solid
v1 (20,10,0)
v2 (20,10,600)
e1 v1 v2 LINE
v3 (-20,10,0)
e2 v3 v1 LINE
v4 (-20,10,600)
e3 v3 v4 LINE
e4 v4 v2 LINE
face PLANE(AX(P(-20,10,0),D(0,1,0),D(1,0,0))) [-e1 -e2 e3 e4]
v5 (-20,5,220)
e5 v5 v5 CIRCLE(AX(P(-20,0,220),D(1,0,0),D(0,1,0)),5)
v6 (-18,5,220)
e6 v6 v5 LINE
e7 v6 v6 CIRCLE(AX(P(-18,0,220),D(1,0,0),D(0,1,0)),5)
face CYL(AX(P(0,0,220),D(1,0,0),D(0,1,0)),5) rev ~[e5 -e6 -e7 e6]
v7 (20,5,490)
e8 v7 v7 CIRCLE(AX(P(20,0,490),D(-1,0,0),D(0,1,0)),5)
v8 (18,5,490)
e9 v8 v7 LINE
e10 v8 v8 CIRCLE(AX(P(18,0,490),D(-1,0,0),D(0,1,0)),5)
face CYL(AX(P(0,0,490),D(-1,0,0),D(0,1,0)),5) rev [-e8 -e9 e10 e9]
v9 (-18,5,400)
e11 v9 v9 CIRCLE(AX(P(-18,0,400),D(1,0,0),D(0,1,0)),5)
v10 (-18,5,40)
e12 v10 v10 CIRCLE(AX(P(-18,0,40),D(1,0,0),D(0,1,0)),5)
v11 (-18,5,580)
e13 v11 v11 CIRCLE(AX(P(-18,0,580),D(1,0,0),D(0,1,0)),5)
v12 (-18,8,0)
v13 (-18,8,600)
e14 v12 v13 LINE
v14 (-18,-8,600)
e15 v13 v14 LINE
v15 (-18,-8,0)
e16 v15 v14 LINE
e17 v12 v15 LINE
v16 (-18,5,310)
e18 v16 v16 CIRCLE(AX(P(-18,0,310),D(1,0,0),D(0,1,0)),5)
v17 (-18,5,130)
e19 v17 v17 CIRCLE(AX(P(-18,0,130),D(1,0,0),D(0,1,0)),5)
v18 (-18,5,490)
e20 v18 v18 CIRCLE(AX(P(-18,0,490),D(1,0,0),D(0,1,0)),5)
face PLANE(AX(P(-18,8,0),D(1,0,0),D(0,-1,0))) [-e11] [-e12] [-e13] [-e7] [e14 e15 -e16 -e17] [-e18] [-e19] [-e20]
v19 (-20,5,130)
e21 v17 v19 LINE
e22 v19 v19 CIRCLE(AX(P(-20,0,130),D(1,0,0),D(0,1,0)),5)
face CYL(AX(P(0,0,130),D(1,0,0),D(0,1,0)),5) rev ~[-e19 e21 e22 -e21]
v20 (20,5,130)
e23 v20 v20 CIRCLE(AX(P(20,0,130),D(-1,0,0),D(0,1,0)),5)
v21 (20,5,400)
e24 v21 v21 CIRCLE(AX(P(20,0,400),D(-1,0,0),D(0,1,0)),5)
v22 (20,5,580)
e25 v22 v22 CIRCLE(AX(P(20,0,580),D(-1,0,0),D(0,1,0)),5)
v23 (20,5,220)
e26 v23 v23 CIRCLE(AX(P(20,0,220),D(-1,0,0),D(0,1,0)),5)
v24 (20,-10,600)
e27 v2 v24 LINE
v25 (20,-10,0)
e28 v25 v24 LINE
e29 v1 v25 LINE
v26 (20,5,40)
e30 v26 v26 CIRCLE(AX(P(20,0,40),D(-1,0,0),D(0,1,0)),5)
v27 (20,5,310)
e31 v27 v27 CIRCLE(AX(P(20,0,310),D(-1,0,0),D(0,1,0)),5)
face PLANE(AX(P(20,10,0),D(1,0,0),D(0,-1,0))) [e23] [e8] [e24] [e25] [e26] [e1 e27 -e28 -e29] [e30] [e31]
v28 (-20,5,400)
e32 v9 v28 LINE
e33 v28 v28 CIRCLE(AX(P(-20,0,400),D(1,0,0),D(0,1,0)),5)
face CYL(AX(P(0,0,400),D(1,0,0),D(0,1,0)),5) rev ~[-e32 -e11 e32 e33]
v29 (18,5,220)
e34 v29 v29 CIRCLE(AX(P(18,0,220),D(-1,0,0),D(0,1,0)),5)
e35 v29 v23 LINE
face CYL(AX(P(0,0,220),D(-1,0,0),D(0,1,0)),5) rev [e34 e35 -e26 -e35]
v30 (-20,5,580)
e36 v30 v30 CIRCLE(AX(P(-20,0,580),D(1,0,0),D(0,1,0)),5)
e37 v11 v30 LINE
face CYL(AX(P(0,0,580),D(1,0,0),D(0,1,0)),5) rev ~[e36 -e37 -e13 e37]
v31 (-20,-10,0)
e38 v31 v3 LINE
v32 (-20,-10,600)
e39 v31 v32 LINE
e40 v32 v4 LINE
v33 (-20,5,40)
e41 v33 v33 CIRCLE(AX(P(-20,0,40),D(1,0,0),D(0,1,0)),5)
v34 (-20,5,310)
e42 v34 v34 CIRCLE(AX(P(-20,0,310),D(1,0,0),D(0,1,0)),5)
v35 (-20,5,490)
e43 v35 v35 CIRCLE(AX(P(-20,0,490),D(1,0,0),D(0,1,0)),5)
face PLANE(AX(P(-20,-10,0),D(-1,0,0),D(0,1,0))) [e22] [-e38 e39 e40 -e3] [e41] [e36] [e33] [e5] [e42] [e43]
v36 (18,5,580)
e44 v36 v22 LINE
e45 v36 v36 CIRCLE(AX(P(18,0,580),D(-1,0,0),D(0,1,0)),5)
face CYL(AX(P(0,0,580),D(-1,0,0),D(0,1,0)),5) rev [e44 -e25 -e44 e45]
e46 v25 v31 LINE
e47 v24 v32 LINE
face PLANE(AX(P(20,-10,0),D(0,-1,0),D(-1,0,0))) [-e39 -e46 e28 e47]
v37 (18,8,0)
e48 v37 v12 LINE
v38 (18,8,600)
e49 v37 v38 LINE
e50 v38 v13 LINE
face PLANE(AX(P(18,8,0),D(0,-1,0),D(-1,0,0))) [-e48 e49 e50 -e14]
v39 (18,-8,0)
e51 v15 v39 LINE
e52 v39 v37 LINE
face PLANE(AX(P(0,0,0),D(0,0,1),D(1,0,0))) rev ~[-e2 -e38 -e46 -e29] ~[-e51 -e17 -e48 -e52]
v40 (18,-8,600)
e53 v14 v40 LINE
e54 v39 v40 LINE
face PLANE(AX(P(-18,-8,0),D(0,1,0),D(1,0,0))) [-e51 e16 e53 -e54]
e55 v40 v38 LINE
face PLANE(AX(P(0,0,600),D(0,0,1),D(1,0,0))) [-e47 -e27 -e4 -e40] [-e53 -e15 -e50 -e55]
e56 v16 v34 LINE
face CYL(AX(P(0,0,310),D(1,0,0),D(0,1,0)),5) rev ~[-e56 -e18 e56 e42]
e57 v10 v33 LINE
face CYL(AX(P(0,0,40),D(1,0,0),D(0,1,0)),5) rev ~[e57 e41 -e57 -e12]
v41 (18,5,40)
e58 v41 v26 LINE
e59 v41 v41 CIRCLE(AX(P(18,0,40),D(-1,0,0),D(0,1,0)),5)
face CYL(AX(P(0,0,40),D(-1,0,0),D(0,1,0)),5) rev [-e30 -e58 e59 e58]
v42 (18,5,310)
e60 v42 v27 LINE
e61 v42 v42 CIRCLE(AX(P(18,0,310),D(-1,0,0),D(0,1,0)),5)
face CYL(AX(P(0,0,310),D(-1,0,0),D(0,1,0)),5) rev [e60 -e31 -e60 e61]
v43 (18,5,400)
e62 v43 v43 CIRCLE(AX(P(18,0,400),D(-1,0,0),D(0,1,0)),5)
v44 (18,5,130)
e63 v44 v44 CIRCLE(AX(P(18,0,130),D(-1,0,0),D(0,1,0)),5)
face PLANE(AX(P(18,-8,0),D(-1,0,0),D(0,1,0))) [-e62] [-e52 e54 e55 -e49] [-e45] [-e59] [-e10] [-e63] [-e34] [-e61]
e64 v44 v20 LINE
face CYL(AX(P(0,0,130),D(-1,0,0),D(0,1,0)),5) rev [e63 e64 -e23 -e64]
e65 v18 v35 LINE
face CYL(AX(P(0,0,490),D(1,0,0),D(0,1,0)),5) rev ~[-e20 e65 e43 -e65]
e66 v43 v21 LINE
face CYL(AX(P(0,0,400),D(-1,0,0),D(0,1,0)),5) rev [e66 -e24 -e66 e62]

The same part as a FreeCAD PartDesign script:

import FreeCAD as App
import Part
import Sketcher
from FreeCAD import Vector

doc = App.newDocument("Part")
params = doc.addObject("Spreadsheet::Sheet", "Params")
for row, (alias, value) in enumerate([
    ("sketch1_width", "40 mm"),
    ("sketch1_height", "20 mm"),
    ("pad1_length", "600 mm"),
    ("sketch2_diameter", "10 mm"),
    ("linearpattern_pitch", "90 mm"),
], start=1):
    params.set(f"A{row}", alias)
    params.set(f"B{row}", "=" + value)
    params.setAlias(f"B{row}", alias)

body = doc.addObject("PartDesign::Body", "Body")

sketch1 = body.newObject("Sketcher::SketchObject", "Sketch")
sketch1.AttachmentSupport = (doc.getObject("XY_Plane"), [""])
sketch1.MapMode = "FlatFace"
sketch1.addGeometry(Part.LineSegment(Vector(20, 10, 0), Vector(-20, 10, 0)), False)
sketch1.addGeometry(Part.LineSegment(Vector(-20, 10, 0), Vector(-20, -10, 0)), False)
sketch1.addGeometry(Part.LineSegment(Vector(-20, -10, 0), Vector(20, -10, 0)), False)
sketch1.addGeometry(Part.LineSegment(Vector(20, -10, 0), Vector(20, 10, 0)), False)
sketch1.addGeometry(Part.LineSegment(Vector(-18, 8, 0), Vector(18, 8, 0)), False)
sketch1.addGeometry(Part.LineSegment(Vector(18, 8, 0), Vector(18, -8, 0)), False)
sketch1.addGeometry(Part.LineSegment(Vector(18, -8, 0), Vector(-18, -8, 0)), False)
sketch1.addGeometry(Part.LineSegment(Vector(-18, -8, 0), Vector(-18, 8, 0)), False)
sketch1.addConstraint(Sketcher.Constraint("Coincident", 0, 2, 1, 1))
sketch1.addConstraint(Sketcher.Constraint("Coincident", 1, 2, 2, 1))
sketch1.addConstraint(Sketcher.Constraint("Coincident", 2, 2, 3, 1))
sketch1.addConstraint(Sketcher.Constraint("Coincident", 3, 2, 0, 1))
sketch1.addConstraint(Sketcher.Constraint("Coincident", 4, 2, 5, 1))
sketch1.addConstraint(Sketcher.Constraint("Coincident", 5, 2, 6, 1))
sketch1.addConstraint(Sketcher.Constraint("Coincident", 6, 2, 7, 1))
sketch1.addConstraint(Sketcher.Constraint("Coincident", 7, 2, 4, 1))
sketch1.addConstraint(Sketcher.Constraint("Horizontal", 0))
sketch1.addConstraint(Sketcher.Constraint("Vertical", 1))
sketch1.addConstraint(Sketcher.Constraint("Horizontal", 2))
sketch1.addConstraint(Sketcher.Constraint("Vertical", 3))
sketch1.addConstraint(Sketcher.Constraint("Horizontal", 4))
sketch1.addConstraint(Sketcher.Constraint("Vertical", 5))
sketch1.addConstraint(Sketcher.Constraint("Horizontal", 6))
sketch1.addConstraint(Sketcher.Constraint("Vertical", 7))
sketch1.addConstraint(Sketcher.Constraint("Symmetric", 0, 2, 2, 2, -1, 1))
sketch1.addConstraint(Sketcher.Constraint("Symmetric", 4, 2, 6, 2, -1, 1))
sketch1.addConstraint(Sketcher.Constraint("DistanceX", 0, 2, 0, 1, 40.0))
sketch1.addConstraint(Sketcher.Constraint("DistanceY", 1, 2, 1, 1, 20.0))
sketch1.addConstraint(Sketcher.Constraint("DistanceX", 4, 2, 3, 2, 2.0))
sketch1.addConstraint(Sketcher.Constraint("DistanceY", 4, 2, 3, 2, 2.0))
sketch1.setExpression("Constraints[18]", "Params.sketch1_width")
sketch1.setExpression("Constraints[19]", "Params.sketch1_height")
pad1 = body.newObject("PartDesign::Pad", "Pad")
pad1.Profile = sketch1
pad1.setExpression("Length", "Params.pad1_length")

sketch2 = body.newObject("Sketcher::SketchObject", "Sketch001")
sketch2.AttachmentSupport = (doc.getObject("YZ_Plane"), [""])
sketch2.MapMode = "FlatFace"
sketch2.addGeometry(Part.Circle(Vector(0, 580, 0), Vector(0, 0, 1), 5), False)
sketch2.addConstraint(Sketcher.Constraint("PointOnObject", 0, 3, -2))
sketch2.addConstraint(Sketcher.Constraint("Diameter", 0, 10.0))
sketch2.addConstraint(Sketcher.Constraint("DistanceY", -1, 1, 0, 3, 580.0))
sketch2.setExpression("Constraints[1]", "Params.sketch2_diameter")
pocket1 = body.newObject("PartDesign::Pocket", "Pocket")
pocket1.Profile = sketch2
pocket1.Type = "ThroughAll"
pocket1.Midplane = True
doc.recompute()

linearpattern = body.newObject("PartDesign::LinearPattern", "LinearPattern")
linearpattern.Originals = [pocket1]
linearpattern.Direction = (doc.getObject("Z_Axis"), [""])
linearpattern.Mode = "offset"
linearpattern.setExpression("Offset", "Params.linearpattern_pitch")
linearpattern.Occurrences = 7
linearpattern.Reversed = True
body.Tip = linearpattern

doc.recompute()
